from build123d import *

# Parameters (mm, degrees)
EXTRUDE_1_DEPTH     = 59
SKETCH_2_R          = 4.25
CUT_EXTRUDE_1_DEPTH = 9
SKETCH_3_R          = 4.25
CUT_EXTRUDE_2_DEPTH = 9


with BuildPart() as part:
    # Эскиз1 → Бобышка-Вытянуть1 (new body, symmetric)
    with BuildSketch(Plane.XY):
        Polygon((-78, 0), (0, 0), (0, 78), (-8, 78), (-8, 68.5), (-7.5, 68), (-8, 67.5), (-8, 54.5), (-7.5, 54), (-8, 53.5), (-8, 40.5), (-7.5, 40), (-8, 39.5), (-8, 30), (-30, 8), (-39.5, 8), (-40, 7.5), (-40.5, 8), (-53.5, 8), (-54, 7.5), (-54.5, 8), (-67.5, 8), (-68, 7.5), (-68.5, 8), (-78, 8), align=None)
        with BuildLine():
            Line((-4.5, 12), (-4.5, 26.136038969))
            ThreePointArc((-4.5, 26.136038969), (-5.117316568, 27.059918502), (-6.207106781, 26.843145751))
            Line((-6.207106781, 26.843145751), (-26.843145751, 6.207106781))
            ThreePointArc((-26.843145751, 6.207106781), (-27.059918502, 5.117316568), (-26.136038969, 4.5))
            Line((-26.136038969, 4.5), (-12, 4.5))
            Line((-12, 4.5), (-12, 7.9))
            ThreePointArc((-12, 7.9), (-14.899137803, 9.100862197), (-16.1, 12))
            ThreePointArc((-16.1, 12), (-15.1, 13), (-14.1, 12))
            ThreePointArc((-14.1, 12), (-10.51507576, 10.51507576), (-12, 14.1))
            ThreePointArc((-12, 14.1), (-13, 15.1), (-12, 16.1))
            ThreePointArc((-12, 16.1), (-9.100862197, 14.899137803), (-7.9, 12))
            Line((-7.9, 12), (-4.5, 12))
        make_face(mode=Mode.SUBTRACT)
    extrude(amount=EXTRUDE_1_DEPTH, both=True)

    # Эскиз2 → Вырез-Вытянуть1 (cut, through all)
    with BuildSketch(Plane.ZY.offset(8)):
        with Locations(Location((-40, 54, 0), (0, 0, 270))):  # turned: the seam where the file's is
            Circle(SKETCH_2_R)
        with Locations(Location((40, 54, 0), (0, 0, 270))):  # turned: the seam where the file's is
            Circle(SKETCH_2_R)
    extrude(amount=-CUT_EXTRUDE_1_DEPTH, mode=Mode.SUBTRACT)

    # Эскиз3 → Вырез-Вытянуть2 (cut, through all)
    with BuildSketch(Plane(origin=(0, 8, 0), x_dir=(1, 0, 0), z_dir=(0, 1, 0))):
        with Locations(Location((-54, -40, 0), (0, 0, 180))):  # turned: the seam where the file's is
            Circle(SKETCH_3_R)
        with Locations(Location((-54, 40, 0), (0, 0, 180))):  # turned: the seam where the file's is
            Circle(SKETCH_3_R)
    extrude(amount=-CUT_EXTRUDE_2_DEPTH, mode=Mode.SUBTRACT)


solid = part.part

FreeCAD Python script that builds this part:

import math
import FreeCAD as App
import Part
import Sketcher

V = App.Vector
Q = App.Units.Quantity

doc = App.newDocument("Part")
body = doc.addObject("PartDesign::Body", "Body")

# Sketch on XY plane
sketch1 = doc.addObject("Sketcher::SketchObject", "Sketch")
body.addObject(sketch1)
sketch1.AttachmentSupport = (doc.XY_Plane, [""])
sketch1.MapMode = "FlatFace"
sketch1.addGeometry(Part.LineSegment(V(-78, 0, 0), V(0, 0, 0)), False)
sketch1.addGeometry(Part.LineSegment(V(0, 0, 0), V(0, 78, 0)), False)
sketch1.addGeometry(Part.LineSegment(V(0, 78, 0), V(-8, 78, 0)), False)
sketch1.addGeometry(Part.LineSegment(V(-8, 78, 0), V(-8, 68.5, 0)), False)
sketch1.addGeometry(Part.LineSegment(V(-8, 68.5, 0), V(-7.5, 68, 0)), False)
sketch1.addGeometry(Part.LineSegment(V(-7.5, 68, 0), V(-8, 67.5, 0)), False)
sketch1.addGeometry(Part.LineSegment(V(-8, 67.5, 0), V(-8, 54.5, 0)), False)
sketch1.addGeometry(Part.LineSegment(V(-8, 54.5, 0), V(-7.5, 54, 0)), False)
sketch1.addGeometry(Part.LineSegment(V(-7.5, 54, 0), V(-8, 53.5, 0)), False)
sketch1.addGeometry(Part.LineSegment(V(-8, 53.5, 0), V(-8, 40.5, 0)), False)
sketch1.addGeometry(Part.LineSegment(V(-8, 40.5, 0), V(-7.5, 40, 0)), False)
sketch1.addGeometry(Part.LineSegment(V(-7.5, 40, 0), V(-8, 39.5, 0)), False)
sketch1.addGeometry(Part.LineSegment(V(-8, 39.5, 0), V(-8, 30, 0)), False)
sketch1.addGeometry(Part.LineSegment(V(-8, 30, 0), V(-30, 8, 0)), False)
sketch1.addGeometry(Part.LineSegment(V(-30, 8, 0), V(-39.5, 8, 0)), False)
sketch1.addGeometry(Part.LineSegment(V(-39.5, 8, 0), V(-40, 7.5, 0)), False)
sketch1.addGeometry(Part.LineSegment(V(-40, 7.5, 0), V(-40.5, 8, 0)), False)
sketch1.addGeometry(Part.LineSegment(V(-40.5, 8, 0), V(-53.5, 8, 0)), False)
sketch1.addGeometry(Part.LineSegment(V(-53.5, 8, 0), V(-54, 7.5, 0)), False)
sketch1.addGeometry(Part.LineSegment(V(-54, 7.5, 0), V(-54.5, 8, 0)), False)
sketch1.addGeometry(Part.LineSegment(V(-54.5, 8, 0), V(-67.5, 8, 0)), False)
sketch1.addGeometry(Part.LineSegment(V(-67.5, 8, 0), V(-68, 7.5, 0)), False)
sketch1.addGeometry(Part.LineSegment(V(-68, 7.5, 0), V(-68.5, 8, 0)), False)
sketch1.addGeometry(Part.LineSegment(V(-68.5, 8, 0), V(-78, 8, 0)), False)
sketch1.addGeometry(Part.LineSegment(V(-78, 8, 0), V(-78, 0, 0)), False)
sketch1.addGeometry(Part.LineSegment(V(-4.5, 26.1, 0), V(-4.5, 12, 0)), False)
sketch1.addGeometry(Part.LineSegment(V(-4.5, 12, 0), V(-7.9, 12, 0)), False)
sketch1.addGeometry(Part.ArcOfCircle(Part.Circle(V(-12, 12, 0), V(0, 0, 1), 4.1), math.radians(0), math.radians(90)), False)
sketch1.addGeometry(Part.ArcOfCircle(Part.Circle(V(-12, 15.1, 0), V(0, 0, 1), 1), math.radians(90), math.radians(270)), False)
sketch1.addGeometry(Part.ArcOfCircle(Part.Circle(V(-12, 12, 0), V(0, 0, 1), 2.1), math.radians(180), math.radians(450)), False)
sketch1.addGeometry(Part.ArcOfCircle(Part.Circle(V(-15.1, 12, 0), V(0, 0, 1), 1), math.radians(0), math.radians(180)), False)
sketch1.addGeometry(Part.ArcOfCircle(Part.Circle(V(-12, 12, 0), V(0, 0, 1), 4.1), math.radians(180), math.radians(270)), False)
sketch1.addGeometry(Part.LineSegment(V(-12, 7.9, 0), V(-12, 4.5, 0)), False)
sketch1.addGeometry(Part.LineSegment(V(-12, 4.5, 0), V(-26.1, 4.5, 0)), False)
sketch1.addGeometry(Part.ArcOfCircle(Part.Circle(V(-26.1, 5.5, 0), V(0, 0, 1), 1), math.radians(135), math.radians(270)), False)
sketch1.addGeometry(Part.LineSegment(V(-26.8, 6.2, 0), V(-6.2, 26.8, 0)), False)
sketch1.addGeometry(Part.ArcOfCircle(Part.Circle(V(-5.5, 26.1, 0), V(0, 0, 1), 1), math.radians(0), math.radians(135)), False)
sketch1.addConstraint(Sketcher.Constraint("Coincident", 0, 2, 1, 1))
sketch1.addConstraint(Sketcher.Constraint("Coincident", 1, 2, 2, 1))
sketch1.addConstraint(Sketcher.Constraint("Coincident", 2, 2, 3, 1))
sketch1.addConstraint(Sketcher.Constraint("Coincident", 3, 2, 4, 1))
sketch1.addConstraint(Sketcher.Constraint("Coincident", 4, 2, 5, 1))
sketch1.addConstraint(Sketcher.Constraint("Coincident", 5, 2, 6, 1))
sketch1.addConstraint(Sketcher.Constraint("Coincident", 6, 2, 7, 1))
sketch1.addConstraint(Sketcher.Constraint("Coincident", 7, 2, 8, 1))
sketch1.addConstraint(Sketcher.Constraint("Coincident", 8, 2, 9, 1))
sketch1.addConstraint(Sketcher.Constraint("Coincident", 9, 2, 10, 1))
sketch1.addConstraint(Sketcher.Constraint("Coincident", 10, 2, 11, 1))
sketch1.addConstraint(Sketcher.Constraint("Coincident", 11, 2, 12, 1))
sketch1.addConstraint(Sketcher.Constraint("Coincident", 12, 2, 13, 1))
sketch1.addConstraint(Sketcher.Constraint("Coincident", 13, 2, 14, 1))
sketch1.addConstraint(Sketcher.Constraint("Coincident", 14, 2, 15, 1))
sketch1.addConstraint(Sketcher.Constraint("Coincident", 15, 2, 16, 1))
sketch1.addConstraint(Sketcher.Constraint("Coincident", 16, 2, 17, 1))
sketch1.addConstraint(Sketcher.Constraint("Coincident", 17, 2, 18, 1))
sketch1.addConstraint(Sketcher.Constraint("Coincident", 18, 2, 19, 1))
sketch1.addConstraint(Sketcher.Constraint("Coincident", 19, 2, 20, 1))
sketch1.addConstraint(Sketcher.Constraint("Coincident", 20, 2, 21, 1))
sketch1.addConstraint(Sketcher.Constraint("Coincident", 21, 2, 22, 1))
sketch1.addConstraint(Sketcher.Constraint("Coincident", 22, 2, 23, 1))
sketch1.addConstraint(Sketcher.Constraint("Coincident", 23, 2, 24, 1))
sketch1.addConstraint(Sketcher.Constraint("Coincident", 24, 2, 0, 1))
sketch1.addConstraint(Sketcher.Constraint("Coincident", 25, 2, 26, 1))
sketch1.addConstraint(Sketcher.Constraint("Coincident", 26, 2, 27, 1))
sketch1.addConstraint(Sketcher.Constraint("Tangent", 27, 2, 28, 1))
sketch1.addConstraint(Sketcher.Constraint("Tangent", 28, 2, 29, 2))
sketch1.addConstraint(Sketcher.Constraint("Tangent", 29, 1, 30, 1))
sketch1.addConstraint(Sketcher.Constraint("Tangent", 30, 2, 31, 1))
sketch1.addConstraint(Sketcher.Constraint("Coincident", 31, 2, 32, 1))
sketch1.addConstraint(Sketcher.Constraint("Coincident", 32, 2, 33, 1))
sketch1.addConstraint(Sketcher.Constraint("Tangent", 33, 2, 34, 2))
sketch1.addConstraint(Sketcher.Constraint("Tangent", 34, 1, 35, 1))
sketch1.addConstraint(Sketcher.Constraint("Tangent", 35, 2, 36, 2))
sketch1.addConstraint(Sketcher.Constraint("Tangent", 36, 1, 25, 1))
sketch1.addConstraint(Sketcher.Constraint("Horizontal", 0))
sketch1.addConstraint(Sketcher.Constraint("Vertical", 1))
sketch1.addConstraint(Sketcher.Constraint("Horizontal", 2))
sketch1.addConstraint(Sketcher.Constraint("Vertical", 3))
sketch1.addConstraint(Sketcher.Constraint("Vertical", 6))
sketch1.addConstraint(Sketcher.Constraint("Vertical", 9))
sketch1.addConstraint(Sketcher.Constraint("Vertical", 12))
sketch1.addConstraint(Sketcher.Constraint("Horizontal", 14))
sketch1.addConstraint(Sketcher.Constraint("Horizontal", 17))
sketch1.addConstraint(Sketcher.Constraint("Horizontal", 20))
sketch1.addConstraint(Sketcher.Constraint("Horizontal", 23))
sketch1.addConstraint(Sketcher.Constraint("Vertical", 24))
sketch1.addConstraint(Sketcher.Constraint("Vertical", 25))
sketch1.addConstraint(Sketcher.Constraint("Horizontal", 26))
sketch1.addConstraint(Sketcher.Constraint("Vertical", 32))
sketch1.addConstraint(Sketcher.Constraint("Horizontal", 33))
sketch1.addConstraint(Sketcher.Constraint("Coincident", 0, 2, -1, 1))
sketch1.addConstraint(Sketcher.Constraint("Coincident", 29, 3, 27, 3))
sketch1.addConstraint(Sketcher.Constraint("Coincident", 31, 3, 27, 3))
sketch1.addConstraint(Sketcher.Constraint("Equal", 28, 30))
sketch1.addConstraint(Sketcher.Constraint("Equal", 30, 34))
sketch1.addConstraint(Sketcher.Constraint("Equal", 34, 36))
sketch1.addConstraint(Sketcher.Constraint("Perpendicular", 4, 5))
sketch1.addConstraint(Sketcher.Constraint("Perpendicular", 5, 7))
sketch1.addConstraint(Sketcher.Constraint("Perpendicular", 7, 8))
sketch1.addConstraint(Sketcher.Constraint("Perpendicular", 8, 10))
sketch1.addConstraint(Sketcher.Constraint("Perpendicular", 10, 11))
sketch1.addConstraint(Sketcher.Constraint("Parallel", 11, 13))
sketch1.addConstraint(Sketcher.Constraint("Parallel", 13, 15))
sketch1.addConstraint(Sketcher.Constraint("Perpendicular", 15, 16))
sketch1.addConstraint(Sketcher.Constraint("Perpendicular", 16, 18))
sketch1.addConstraint(Sketcher.Constraint("Perpendicular", 18, 19))
sketch1.addConstraint(Sketcher.Constraint("Perpendicular", 19, 21))
sketch1.addConstraint(Sketcher.Constraint("Perpendicular", 21, 22))
sketch1.addConstraint(Sketcher.Constraint("Perpendicular", 22, 35))
sketch1.addConstraint(Sketcher.Constraint("Horizontal", 29, 3, 30, 3))
sketch1.addConstraint(Sketcher.Constraint("Horizontal", 14, 2, 16, 2))
sketch1.addConstraint(Sketcher.Constraint("Horizontal", 15, 2, 18, 2))
sketch1.addConstraint(Sketcher.Constraint("Horizontal", 17, 2, 19, 2))
sketch1.addConstraint(Sketcher.Constraint("Horizontal", 18, 2, 21, 2))
sketch1.addConstraint(Sketcher.Constraint("Horizontal", 20, 2, 22, 2))
sketch1.addConstraint(Sketcher.Constraint("Horizontal", 31, 3, 25, 2))
sketch1.addConstraint(Sketcher.Constraint("Vertical", 27, 3, 28, 3))
sketch1.addConstraint(Sketcher.Constraint("Vertical", 3, 2, 5, 2))
sketch1.addConstraint(Sketcher.Constraint("Vertical", 4, 2, 7, 2))
sketch1.addConstraint(Sketcher.Constraint("Vertical", 6, 2, 8, 2))
sketch1.addConstraint(Sketcher.Constraint("Vertical", 7, 2, 10, 2))
sketch1.addConstraint(Sketcher.Constraint("Vertical", 9, 2, 11, 2))
sketch1.addConstraint(Sketcher.Constraint("Vertical", 28, 2, 31, 2))
sketch1.addConstraint(Sketcher.Constraint("Equal", 17, 20))
sketch1.addConstraint(Sketcher.Constraint("Equal", 14, 23))
sketch1.addConstraint(Sketcher.Constraint("Equal", 0, 1))
sketch1.addConstraint(Sketcher.Constraint("Equal", 23, 3))
sketch1.addConstraint(Sketcher.Constraint("Equal", 20, 6))
sketch1.addConstraint(Sketcher.Constraint("Equal", 6, 9))
sketch1.addConstraint(Sketcher.Constraint("Equal", 3, 12))
sketch1.addConstraint(Sketcher.Constraint("Equal", 2, 24))
sketch1.addConstraint(Sketcher.Constraint("Equal", 33, 25))
sketch1.addConstraint(Sketcher.Constraint("Equal", 26, 32))
sketch1.addConstraint(Sketcher.Constraint("Radius", 28, Q("1 mm")))
sketch1.addConstraint(Sketcher.Constraint("Radius", 27, Q("4.1 mm")))
sketch1.addConstraint(Sketcher.Constraint("DistanceX", 0, 1, 0, 2, Q("78 mm")))
sketch1.addConstraint(Sketcher.Constraint("DistanceX", 2, 2, 2, 1, Q("8 mm")))
sketch1.addConstraint(Sketcher.Constraint("DistanceX", 17, 2, 17, 1, Q("13 mm")))
sketch1.addConstraint(Sketcher.Constraint("DistanceX", 14, 2, 14, 1, Q("9.5 mm")))
sketch1.addConstraint(Sketcher.Constraint("DistanceX", 26, 2, 26, 1, Q("3.4 mm")))
sketch1.addConstraint(Sketcher.Constraint("DistanceX", 27, 3, -1, 1, Q("12 mm")))
sketch1.addConstraint(Sketcher.Constraint("DistanceY", -1, 1, 27, 3, Q("12 mm")))
sketch1.addConstraint(Sketcher.Constraint("DistanceY", -1, 1, 4, 2, Q("68 mm")))
sketch1.addConstraint(Sketcher.Constraint("DistanceX", 33, 2, 33, 1, Q("14.136039 mm")))
pad1 = doc.addObject("PartDesign::Pad", "Pad")
body.addObject(pad1)
pad1.Profile = sketch1
pad1.Length = 118
pad1.Midplane = True

# Sketch on YZ plane
sketch2 = doc.addObject("Sketcher::SketchObject", "Sketch001")
body.addObject(sketch2)
sketch2.AttachmentSupport = (doc.YZ_Plane, [""])
sketch2.MapMode = "FlatFace"
sketch2.AttachmentOffset = App.Placement(V(0, 0, -8), App.Rotation())
sketch2.addGeometry(Part.Circle(V(54, -40, 0), V(0, 0, 1), 4.2), False)
sketch2.addGeometry(Part.Circle(V(54, 40, 0), V(0, 0, 1), 4.2), False)
sketch2.addConstraint(Sketcher.Constraint("Equal", 0, 1))
sketch2.addConstraint(Sketcher.Constraint("Symmetric", 0, 3, 1, 3, -1))
sketch2.addConstraint(Sketcher.Constraint("Diameter", 0, Q("8.5 mm")))
sketch2.addConstraint(Sketcher.Constraint("DistanceX", -1, 1, 0, 3, Q("54 mm")))
sketch2.addConstraint(Sketcher.Constraint("DistanceY", 0, 3, -1, 1, Q("40 mm")))
pocket1 = doc.addObject("PartDesign::Pocket", "Pocket")
body.addObject(pocket1)
pocket1.Profile = sketch2
pocket1.Type = "ThroughAll"
pocket1.Reversed = True

# Sketch on XZ plane
sketch3 = doc.addObject("Sketcher::SketchObject", "Sketch002")
body.addObject(sketch3)
sketch3.AttachmentSupport = (doc.XZ_Plane, [""])
sketch3.MapMode = "FlatFace"
sketch3.AttachmentOffset = App.Placement(V(0, 0, -8), App.Rotation())
sketch3.addGeometry(Part.Circle(V(-54, 40, 0), V(0, 0, 1), 4.2), False)
sketch3.addGeometry(Part.Circle(V(-54, -40, 0), V(0, 0, 1), 4.2), False)
sketch3.addConstraint(Sketcher.Constraint("Equal", 0, 1))
sketch3.addConstraint(Sketcher.Constraint("Symmetric", 0, 3, 1, 3, -1))
sketch3.addConstraint(Sketcher.Constraint("Diameter", 0, Q("8.5 mm")))
sketch3.addConstraint(Sketcher.Constraint("DistanceX", 0, 3, -1, 1, Q("54 mm")))
sketch3.addConstraint(Sketcher.Constraint("DistanceY", -1, 1, 0, 3, Q("40 mm")))
pocket2 = doc.addObject("PartDesign::Pocket", "Pocket001")
body.addObject(pocket2)
pocket2.Profile = sketch3
pocket2.Type = "ThroughAll"
pocket2.Reversed = True

doc.recompute()
